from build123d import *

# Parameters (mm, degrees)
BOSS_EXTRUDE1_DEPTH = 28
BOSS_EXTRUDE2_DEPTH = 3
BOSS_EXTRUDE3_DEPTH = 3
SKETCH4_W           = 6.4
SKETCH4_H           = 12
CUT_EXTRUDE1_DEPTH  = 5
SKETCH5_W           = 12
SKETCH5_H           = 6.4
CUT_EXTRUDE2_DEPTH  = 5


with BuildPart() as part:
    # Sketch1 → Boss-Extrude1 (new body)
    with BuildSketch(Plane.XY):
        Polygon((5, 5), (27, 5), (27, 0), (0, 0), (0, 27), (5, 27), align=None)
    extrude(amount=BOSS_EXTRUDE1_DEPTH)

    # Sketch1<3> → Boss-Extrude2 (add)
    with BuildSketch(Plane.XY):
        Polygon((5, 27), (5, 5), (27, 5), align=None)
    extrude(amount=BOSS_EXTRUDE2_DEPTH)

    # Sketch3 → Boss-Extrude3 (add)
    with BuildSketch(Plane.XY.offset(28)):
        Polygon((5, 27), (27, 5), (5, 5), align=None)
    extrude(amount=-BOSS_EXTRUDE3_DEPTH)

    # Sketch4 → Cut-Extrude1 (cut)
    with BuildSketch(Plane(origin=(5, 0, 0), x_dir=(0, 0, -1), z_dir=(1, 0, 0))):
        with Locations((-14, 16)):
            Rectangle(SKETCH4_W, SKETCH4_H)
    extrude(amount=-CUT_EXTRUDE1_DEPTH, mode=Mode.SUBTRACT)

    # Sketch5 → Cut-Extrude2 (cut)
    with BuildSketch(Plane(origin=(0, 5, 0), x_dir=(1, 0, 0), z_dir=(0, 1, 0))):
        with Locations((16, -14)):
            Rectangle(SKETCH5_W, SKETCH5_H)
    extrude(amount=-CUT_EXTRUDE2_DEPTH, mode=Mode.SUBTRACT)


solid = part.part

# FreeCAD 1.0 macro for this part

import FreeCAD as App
import Part
import Sketcher

V = App.Vector
Q = App.Units.Quantity


def add_polygon(sketch, points):
    """Adds a closed chain of lines whose ends are joined by coincident constraints."""
    first, n = sketch.GeometryCount, len(points)
    for a, b in zip(points, points[1:] + points[:1]):
        sketch.addGeometry(Part.LineSegment(App.Vector(*a, 0), App.Vector(*b, 0)), False)
    for i in range(n):
        sketch.addConstraint(Sketcher.Constraint("Coincident", first + i, 2, first + (i + 1) % n, 1))

doc = App.newDocument("Part")
params = doc.addObject("Spreadsheet::Sheet", "Params")
for row, (alias, value) in enumerate([
    ("sketch1_width", "22 mm"),
    ("sketch1_width2", "5 mm"),
    ("pad1_length", "28 mm"),
    ("sketch2_width", "22 mm"),
    ("pad2_length", "3 mm"),
    ("sketch3_width", "22 mm"),
    ("pad3_length", "3 mm"),
    ("sketch4_width", "12 mm"),
    ("sketch4_height", "6.4 mm"),
    ("pocket1_length", "5 mm"),
    ("sketch5_width", "12 mm"),
    ("sketch5_height", "6.4 mm"),
    ("pocket2_length", "5 mm"),
], start=1):
    params.set(f"A{row}", alias)
    params.set(f"B{row}", "=" + value)
    params.setAlias(f"B{row}", alias)

body = doc.addObject("PartDesign::Body", "Body")

# Sketch on XY plane
sketch1 = body.newObject("Sketcher::SketchObject", "Sketch")
sketch1.AttachmentSupport = (doc.getObject("XY_Plane"), [""])
sketch1.MapMode = "FlatFace"
add_polygon(sketch1, [(27, 5), (5, 5), (5, 27), (0, 27), (0, 0), (27, 0)])  # lines 0-5
sketch1.addConstraint([
    Sketcher.Constraint("Horizontal", 0),
    Sketcher.Constraint("Vertical", 1),
    Sketcher.Constraint("Horizontal", 2),
    Sketcher.Constraint("Vertical", 3),
    Sketcher.Constraint("Horizontal", 4),
    Sketcher.Constraint("Vertical", 5),
    Sketcher.Constraint("Coincident", 3, 2, -1, 1),
    Sketcher.Constraint("Equal", 0, 1),
    Sketcher.Constraint("Equal", 4, 3),
    Sketcher.Constraint("DistanceX", 0, 2, 0, 1, Q("22 mm")),
    Sketcher.Constraint("DistanceX", 2, 2, 2, 1, Q("5 mm")),
])
sketch1.setExpression("Constraints[15]", "Params.sketch1_width")
sketch1.setExpression("Constraints[16]", "Params.sketch1_width2")
pad1 = body.newObject("PartDesign::Pad", "Pad")
pad1.Profile = sketch1
pad1.setExpression("Length", "Params.pad1_length")

# Sketch on XY plane
sketch2 = body.newObject("Sketcher::SketchObject", "Sketch001")
sketch2.AttachmentSupport = (doc.getObject("XY_Plane"), [""])
sketch2.MapMode = "FlatFace"
add_polygon(sketch2, [(5, 27), (5, 5), (27, 5)])  # lines 0-2
sketch2.addConstraint([
    Sketcher.Constraint("Vertical", 0),
    Sketcher.Constraint("Horizontal", 1),
    Sketcher.Constraint("Equal", 1, 0),
    Sketcher.Constraint("DistanceX", 1, 1, 1, 2, Q("22 mm")),
    Sketcher.Constraint("DistanceX", -1, 1, 0, 2, Q("5 mm")),
    Sketcher.Constraint("DistanceY", -1, 1, 0, 2, Q("5 mm")),
])
sketch2.setExpression("Constraints[6]", "Params.sketch2_width")
pad2 = body.newObject("PartDesign::Pad", "Pad001")
pad2.Profile = sketch2
pad2.setExpression("Length", "Params.pad2_length")

# Sketch on XY plane
sketch3 = body.newObject("Sketcher::SketchObject", "Sketch002")
sketch3.AttachmentSupport = (doc.getObject("XY_Plane"), [""])
sketch3.MapMode = "FlatFace"
sketch3.AttachmentOffset = App.Placement(V(0, 0, 28), App.Rotation())
add_polygon(sketch3, [(27, 5), (5, 27), (5, 5)])  # lines 0-2
sketch3.addConstraint([
    Sketcher.Constraint("Vertical", 1),
    Sketcher.Constraint("Horizontal", 2),
    Sketcher.Constraint("Equal", 2, 1),
    Sketcher.Constraint("DistanceX", 2, 1, 2, 2, Q("22 mm")),
    Sketcher.Constraint("DistanceX", -1, 1, 0, 2, Q("5 mm")),
    Sketcher.Constraint("DistanceY", -1, 1, 0, 2, Q("27 mm")),
])
sketch3.setExpression("Constraints[6]", "Params.sketch3_width")
pad3 = body.newObject("PartDesign::Pad", "Pad002")
pad3.Profile = sketch3
pad3.setExpression("Length", "Params.pad3_length")
pad3.Reversed = True

# Sketch on YZ plane
sketch4 = body.newObject("Sketcher::SketchObject", "Sketch003")
sketch4.AttachmentSupport = (doc.getObject("YZ_Plane"), [""])
sketch4.MapMode = "FlatFace"
sketch4.AttachmentOffset = App.Placement(V(0, 0, 5), App.Rotation())
add_polygon(sketch4, [(22, 17), (10, 17), (10, 11), (22, 11)])  # lines 0-3
sketch4.addConstraint([
    Sketcher.Constraint("Horizontal", 0),
    Sketcher.Constraint("Vertical", 1),
    Sketcher.Constraint("Horizontal", 2),
    Sketcher.Constraint("Vertical", 3),
    Sketcher.Constraint("DistanceX", 0, 2, 0, 1, Q("12 mm")),
    Sketcher.Constraint("DistanceY", 1, 2, 1, 1, Q("6.4 mm")),
    Sketcher.Constraint("DistanceX", -1, 1, 0, 2, Q("10 mm")),
    Sketcher.Constraint("DistanceY", -1, 1, 0, 2, Q("17.2 mm")),
])
sketch4.setExpression("Constraints[8]", "Params.sketch4_width")
sketch4.setExpression("Constraints[9]", "Params.sketch4_height")
pocket1 = body.newObject("PartDesign::Pocket", "Pocket")
pocket1.Profile = sketch4
pocket1.setExpression("Length", "Params.pocket1_length")

# Sketch on XZ plane
sketch5 = body.newObject("Sketcher::SketchObject", "Sketch004")
sketch5.AttachmentSupport = (doc.getObject("XZ_Plane"), [""])
sketch5.MapMode = "FlatFace"
sketch5.AttachmentOffset = App.Placement(V(0, 0, -5), App.Rotation())
add_polygon(sketch5, [(10, 11), (10, 17), (22, 17), (22, 11)])  # lines 0-3
sketch5.addConstraint([
    Sketcher.Constraint("Vertical", 0),
    Sketcher.Constraint("Horizontal", 1),
    Sketcher.Constraint("Vertical", 2),
    Sketcher.Constraint("Horizontal", 3),
    Sketcher.Constraint("DistanceX", 1, 1, 1, 2, Q("12 mm")),
    Sketcher.Constraint("DistanceY", 0, 1, 0, 2, Q("6.4 mm")),
    Sketcher.Constraint("DistanceX", -1, 1, 0, 2, Q("10 mm")),
    Sketcher.Constraint("DistanceY", -1, 1, 0, 2, Q("17.2 mm")),
])
sketch5.setExpression("Constraints[8]", "Params.sketch5_width")
sketch5.setExpression("Constraints[9]", "Params.sketch5_height")
pocket2 = body.newObject("PartDesign::Pocket", "Pocket001")
pocket2.Profile = sketch5
pocket2.setExpression("Length", "Params.pocket2_length")
pocket2.Reversed = True

doc.recompute()
